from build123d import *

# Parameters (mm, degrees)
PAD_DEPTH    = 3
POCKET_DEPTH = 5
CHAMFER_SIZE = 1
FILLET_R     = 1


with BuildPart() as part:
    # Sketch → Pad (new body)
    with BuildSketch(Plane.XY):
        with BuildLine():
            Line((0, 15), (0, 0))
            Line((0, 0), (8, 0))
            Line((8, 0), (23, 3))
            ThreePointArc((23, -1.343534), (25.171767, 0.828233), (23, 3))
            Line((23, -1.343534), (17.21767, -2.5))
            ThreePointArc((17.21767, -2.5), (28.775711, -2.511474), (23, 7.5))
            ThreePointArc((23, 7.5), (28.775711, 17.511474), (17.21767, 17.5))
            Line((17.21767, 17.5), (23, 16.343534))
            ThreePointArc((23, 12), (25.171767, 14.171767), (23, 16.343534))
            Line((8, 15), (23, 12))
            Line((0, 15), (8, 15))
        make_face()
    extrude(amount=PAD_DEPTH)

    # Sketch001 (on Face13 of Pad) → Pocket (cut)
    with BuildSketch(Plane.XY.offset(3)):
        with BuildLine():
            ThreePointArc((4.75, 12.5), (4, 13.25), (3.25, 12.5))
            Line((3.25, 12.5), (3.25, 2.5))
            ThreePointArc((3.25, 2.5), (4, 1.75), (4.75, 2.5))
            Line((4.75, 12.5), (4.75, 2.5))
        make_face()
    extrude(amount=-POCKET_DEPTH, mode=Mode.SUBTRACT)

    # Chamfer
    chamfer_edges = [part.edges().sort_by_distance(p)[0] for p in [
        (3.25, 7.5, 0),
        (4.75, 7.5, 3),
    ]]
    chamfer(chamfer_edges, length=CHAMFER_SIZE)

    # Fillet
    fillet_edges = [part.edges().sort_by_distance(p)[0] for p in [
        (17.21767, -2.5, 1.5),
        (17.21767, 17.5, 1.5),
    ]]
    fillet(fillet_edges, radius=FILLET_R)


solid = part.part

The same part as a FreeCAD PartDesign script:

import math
import FreeCAD as App
import Part
import Sketcher


def edges_at(feature, points):
    """Names of the edges that pass closest to the given points."""
    edges = feature.Shape.Edges
    near = lambda p: min(range(len(edges)), key=lambda i: edges[i].distToShape(Part.Vertex(*p))[0])
    return sorted({f"Edge{near(p) + 1}" for p in points})

doc = App.newDocument("Part")
params = doc.addObject("Spreadsheet::Sheet", "Params")
for row, (alias, value) in enumerate([
    ("sketch1_width", "8 mm"),
    ("sketch1_height", "15 mm"),
    ("pad1_length", "3 mm"),
    ("sketch2_height", "10 mm"),
    ("sketch2_radius", "0.75 mm"),
    ("pocket1_length", "5 mm"),
    ("chamfer_size", "1 mm"),
    ("fillet_radius", "1 mm"),
], start=1):
    params.set(f"A{row}", alias)
    params.set(f"B{row}", "=" + value)
    params.setAlias(f"B{row}", alias)

body = doc.addObject("PartDesign::Body", "Body")

# Sketch on XY plane
sketch1 = doc.addObject("Sketcher::SketchObject", "Sketch")
body.addObject(sketch1)
sketch1.AttachmentSupport = (doc.XY_Plane, [""])
sketch1.MapMode = "FlatFace"
sketch1.addGeometry(Part.LineSegment(App.Vector(0, 15, 0), App.Vector(0, 0, 0)), False)
sketch1.addGeometry(Part.LineSegment(App.Vector(0, 0, 0), App.Vector(8, 0, 0)), False)
sketch1.addGeometry(Part.LineSegment(App.Vector(8, 0, 0), App.Vector(23, 3, 0)), False)
sketch1.addGeometry(Part.ArcOfCircle(Part.Circle(App.Vector(23, 0.8, 0), App.Vector(0, 0, 1), 2.2), math.radians(-90), math.radians(90)), False)
sketch1.addGeometry(Part.LineSegment(App.Vector(23, -1.3, 0), App.Vector(17.2, -2.5, 0)), False)
sketch1.addGeometry(Part.ArcOfCircle(Part.Circle(App.Vector(23, 0.8, 0), App.Vector(0, 0, 1), 6.7), math.radians(-150), math.radians(90)), False)
sketch1.addGeometry(Part.ArcOfCircle(Part.Circle(App.Vector(23, 14.2, 0), App.Vector(0, 0, 1), 6.7), math.radians(-90), math.radians(150)), False)
sketch1.addGeometry(Part.LineSegment(App.Vector(17.2, 17.5, 0), App.Vector(23, 16.3, 0)), False)
sketch1.addGeometry(Part.ArcOfCircle(Part.Circle(App.Vector(23, 14.2, 0), App.Vector(0, 0, 1), 2.2), math.radians(-90), math.radians(90)), False)
sketch1.addGeometry(Part.LineSegment(App.Vector(23, 12, 0), App.Vector(8, 15, 0)), False)
sketch1.addGeometry(Part.LineSegment(App.Vector(8, 15, 0), App.Vector(0, 15, 0)), False)
sketch1.addConstraint(Sketcher.Constraint("Coincident", 0, 2, 1, 1))
sketch1.addConstraint(Sketcher.Constraint("Coincident", 1, 2, 2, 1))
sketch1.addConstraint(Sketcher.Constraint("Coincident", 2, 2, 3, 2))
sketch1.addConstraint(Sketcher.Constraint("Coincident", 3, 1, 4, 1))
sketch1.addConstraint(Sketcher.Constraint("Coincident", 4, 2, 5, 1))
sketch1.addConstraint(Sketcher.Constraint("Tangent", 5, 2, 6, 1))
sketch1.addConstraint(Sketcher.Constraint("Coincident", 6, 2, 7, 1))
sketch1.addConstraint(Sketcher.Constraint("Coincident", 7, 2, 8, 2))
sketch1.addConstraint(Sketcher.Constraint("Coincident", 8, 1, 9, 1))
sketch1.addConstraint(Sketcher.Constraint("Coincident", 9, 2, 10, 1))
sketch1.addConstraint(Sketcher.Constraint("Coincident", 10, 2, 0, 1))
sketch1.addConstraint(Sketcher.Constraint("Vertical", 0))
sketch1.addConstraint(Sketcher.Constraint("Horizontal", 1))
sketch1.addConstraint(Sketcher.Constraint("Horizontal", 10))
sketch1.addConstraint(Sketcher.Constraint("Coincident", 0, 2, -1, 1))
sketch1.addConstraint(Sketcher.Constraint("Coincident", 5, 3, 3, 3))
sketch1.addConstraint(Sketcher.Constraint("Coincident", 8, 3, 6, 3))
sketch1.addConstraint(Sketcher.Constraint("Equal", 5, 6))
sketch1.addConstraint(Sketcher.Constraint("Equal", 3, 8))
sketch1.addConstraint(Sketcher.Constraint("Parallel", 2, 4))
sketch1.addConstraint(Sketcher.Constraint("Parallel", 7, 9))
sketch1.addConstraint(Sketcher.Constraint("Vertical", 5, 3, 6, 3))
sketch1.addConstraint(Sketcher.Constraint("Vertical", 8, 3, 2, 2))
sketch1.addConstraint(Sketcher.Constraint("Vertical", 2, 2, 3, 1))
sketch1.addConstraint(Sketcher.Constraint("Vertical", 4, 2, 6, 2))
sketch1.addConstraint(Sketcher.Constraint("Vertical", 5, 2, 7, 2))
sketch1.addConstraint(Sketcher.Constraint("Vertical", 7, 2, 8, 1))
sketch1.addConstraint(Sketcher.Constraint("Vertical", 1, 2, 9, 2))
sketch1.addConstraint(Sketcher.Constraint("DistanceX", 1, 1, 1, 2, 8.0))
sketch1.addConstraint(Sketcher.Constraint("DistanceY", 0, 2, 0, 1, 15.0))
sketch1.addConstraint(Sketcher.Constraint("DistanceX", -1, 1, 3, 3, 23.0))
sketch1.addConstraint(Sketcher.Constraint("DistanceY", -1, 1, 2, 2, 3.0))
sketch1.addConstraint(Sketcher.Constraint("DistanceY", 5, 2, 6, 2, 10.0))
sketch1.setExpression("Constraints[28]", "Params.sketch1_width")
sketch1.setExpression("Constraints[29]", "Params.sketch1_height")
pad1 = doc.addObject("PartDesign::Pad", "Pad")
body.addObject(pad1)
pad1.Profile = sketch1
pad1.setExpression("Length", "Params.pad1_length")

# Sketch on XY plane
sketch2 = doc.addObject("Sketcher::SketchObject", "Sketch001")
body.addObject(sketch2)
sketch2.AttachmentSupport = (doc.XY_Plane, [""])
sketch2.MapMode = "FlatFace"
sketch2.AttachmentOffset = App.Placement(App.Vector(0, 0, 3), App.Rotation())
sketch2.addGeometry(Part.ArcOfCircle(Part.Circle(App.Vector(4, 12.5, 0), App.Vector(0, 0, 1), 0.8), math.radians(0), math.radians(180)), False)
sketch2.addGeometry(Part.LineSegment(App.Vector(3.2, 12.5, 0), App.Vector(3.2, 2.5, 0)), False)
sketch2.addGeometry(Part.ArcOfCircle(Part.Circle(App.Vector(4, 2.5, 0), App.Vector(0, 0, 1), 0.8), math.radians(180), math.radians(360)), False)
sketch2.addGeometry(Part.LineSegment(App.Vector(4.8, 2.5, 0), App.Vector(4.8, 12.5, 0)), False)
sketch2.addConstraint(Sketcher.Constraint("Tangent", 0, 2, 1, 1))
sketch2.addConstraint(Sketcher.Constraint("Tangent", 1, 2, 2, 1))
sketch2.addConstraint(Sketcher.Constraint("Tangent", 2, 2, 3, 1))
sketch2.addConstraint(Sketcher.Constraint("Tangent", 3, 2, 0, 1))
sketch2.addConstraint(Sketcher.Constraint("Vertical", 1))
sketch2.addConstraint(Sketcher.Constraint("Vertical", 3))
sketch2.addConstraint(Sketcher.Constraint("DistanceY", 1, 2, 1, 1, 10.0))
sketch2.addConstraint(Sketcher.Constraint("Radius", 0, 0.75))
sketch2.addConstraint(Sketcher.Constraint("DistanceX", -1, 1, 0, 3, 4.0))
sketch2.addConstraint(Sketcher.Constraint("DistanceY", -1, 1, 0, 3, 12.5))
sketch2.setExpression("Constraints[6]", "Params.sketch2_height")
sketch2.setExpression("Constraints[7]", "Params.sketch2_radius")
pocket1 = doc.addObject("PartDesign::Pocket", "Pocket")
body.addObject(pocket1)
pocket1.Profile = sketch2
pocket1.setExpression("Length", "Params.pocket1_length")
doc.recompute()

chamfer = doc.addObject("PartDesign::Chamfer", "Chamfer")
body.addObject(chamfer)
chamfer.Base = (pocket1, edges_at(pocket1, [(3.25, 7.5, 0), (4.75, 7.5, 3)]))
chamfer.setExpression("Size", "Params.chamfer_size")
doc.recompute()

fillet = doc.addObject("PartDesign::Fillet", "Fillet")
body.addObject(fillet)
fillet.Base = (chamfer, edges_at(chamfer, [(17.218, -2.5, 1.5), (17.218, 17.5, 1.5)]))
fillet.setExpression("Radius", "Params.fillet_radius")

doc.recompute()
